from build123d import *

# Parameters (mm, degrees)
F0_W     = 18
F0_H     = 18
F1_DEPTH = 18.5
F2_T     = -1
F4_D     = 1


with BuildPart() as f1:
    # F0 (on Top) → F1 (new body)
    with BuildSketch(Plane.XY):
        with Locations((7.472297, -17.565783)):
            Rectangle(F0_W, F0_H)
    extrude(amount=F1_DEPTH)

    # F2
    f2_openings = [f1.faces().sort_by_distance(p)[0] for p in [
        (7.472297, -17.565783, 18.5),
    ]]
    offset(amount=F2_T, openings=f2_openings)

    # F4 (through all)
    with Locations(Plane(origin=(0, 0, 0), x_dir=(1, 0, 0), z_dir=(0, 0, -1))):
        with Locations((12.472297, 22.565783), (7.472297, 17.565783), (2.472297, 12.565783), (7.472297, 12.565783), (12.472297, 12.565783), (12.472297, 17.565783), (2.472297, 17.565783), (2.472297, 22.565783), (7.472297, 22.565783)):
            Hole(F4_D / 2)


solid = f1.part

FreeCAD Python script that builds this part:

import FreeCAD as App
import Part
import Sketcher

V = App.Vector


def faces_at(feature, points):
    """Names of the faces that lie closest to the given points."""
    faces = feature.Shape.Faces
    near = lambda p: min(range(len(faces)), key=lambda i: faces[i].distToShape(Part.Vertex(*p))[0])
    return sorted({f"Face{near(p) + 1}" for p in points})


def add_polygon(sketch, points):
    """Adds a closed chain of lines whose ends are joined by coincident constraints."""
    first, n = sketch.GeometryCount, len(points)
    for a, b in zip(points, points[1:] + points[:1]):
        sketch.addGeometry(Part.LineSegment(App.Vector(*a, 0), App.Vector(*b, 0)), False)
    for i in range(n):
        sketch.addConstraint(Sketcher.Constraint("Coincident", first + i, 2, first + (i + 1) % n, 1))

doc = App.newDocument("Part")
params = doc.addObject("Spreadsheet::Sheet", "Params")
for row, (alias, value) in enumerate([
    ("sketch1_width", "18 mm"),
    ("pad1_length", "18.5 mm"),
    ("thickness_wall", "1 mm"),
    ("sketch2_diameter", "1 mm"),
    ("hole_diameter", "1 mm"),
], start=1):
    params.set(f"A{row}", alias)
    params.set(f"B{row}", "=" + value)
    params.setAlias(f"B{row}", alias)

body = doc.addObject("PartDesign::Body", "Body")

# Sketch on XY plane
sketch1 = body.newObject("Sketcher::SketchObject", "Sketch")
sketch1.AttachmentSupport = (doc.getObject("XY_Plane"), [""])
sketch1.MapMode = "FlatFace"
add_polygon(sketch1, [(-2, -9), (-2, -27), (16, -27), (16, -9)])  # lines 0-3
sketch1.addConstraint(Sketcher.Constraint("Vertical", 0))
sketch1.addConstraint(Sketcher.Constraint("Horizontal", 1))
sketch1.addConstraint(Sketcher.Constraint("Vertical", 2))
sketch1.addConstraint(Sketcher.Constraint("Horizontal", 3))
sketch1.addConstraint(Sketcher.Constraint("Equal", 3, 0))
sketch1.addConstraint(Sketcher.Constraint("DistanceX", 1, 1, 1, 2, 18.0))
sketch1.addConstraint(Sketcher.Constraint("DistanceX", 0, 2, -1, 1, 1.527703))
sketch1.addConstraint(Sketcher.Constraint("DistanceY", 0, 2, -1, 1, 26.565783))
sketch1.setExpression("Constraints[9]", "Params.sketch1_width")
pad1 = body.newObject("PartDesign::Pad", "Pad")
pad1.Profile = sketch1
pad1.setExpression("Length", "Params.pad1_length")
doc.recompute()

thickness = body.newObject("PartDesign::Thickness", "Thickness")
thickness.Base = (pad1, faces_at(pad1, [(7.472, -17.566, 18.5)]))
thickness.setExpression("Value", "Params.thickness_wall")
thickness.Reversed = True
thickness.Join = "Arc"

# Sketch on XY plane
sketch2 = body.newObject("Sketcher::SketchObject", "Sketch001")
sketch2.AttachmentSupport = (doc.getObject("XY_Plane"), [""])
sketch2.MapMode = "FlatFace"
sketch2.addGeometry(Part.Circle(V(12.5, -22.6, 0), V(0, 0, 1), 0.5), False)
sketch2.addGeometry(Part.Circle(V(7.5, -17.6, 0), V(0, 0, 1), 0.5), False)
sketch2.addGeometry(Part.Circle(V(2.5, -12.6, 0), V(0, 0, 1), 0.5), False)
sketch2.addGeometry(Part.Circle(V(7.5, -12.6, 0), V(0, 0, 1), 0.5), False)
sketch2.addGeometry(Part.Circle(V(12.5, -12.6, 0), V(0, 0, 1), 0.5), False)
sketch2.addGeometry(Part.Circle(V(12.5, -17.6, 0), V(0, 0, 1), 0.5), False)
sketch2.addGeometry(Part.Circle(V(2.5, -17.6, 0), V(0, 0, 1), 0.5), False)
sketch2.addGeometry(Part.Circle(V(2.5, -22.6, 0), V(0, 0, 1), 0.5), False)
sketch2.addGeometry(Part.Circle(V(7.5, -22.6, 0), V(0, 0, 1), 0.5), False)
sketch2.addConstraint(Sketcher.Constraint("Equal", 0, 1))
sketch2.addConstraint(Sketcher.Constraint("Equal", 1, 2))
sketch2.addConstraint(Sketcher.Constraint("Equal", 2, 3))
sketch2.addConstraint(Sketcher.Constraint("Equal", 3, 4))
sketch2.addConstraint(Sketcher.Constraint("Equal", 4, 5))
sketch2.addConstraint(Sketcher.Constraint("Equal", 5, 6))
sketch2.addConstraint(Sketcher.Constraint("Equal", 6, 7))
sketch2.addConstraint(Sketcher.Constraint("Equal", 7, 8))
sketch2.addConstraint(Sketcher.Constraint("Horizontal", 2, 3, 3, 3))
sketch2.addConstraint(Sketcher.Constraint("Horizontal", 3, 3, 4, 3))
sketch2.addConstraint(Sketcher.Constraint("Horizontal", 1, 3, 5, 3))
sketch2.addConstraint(Sketcher.Constraint("Horizontal", 5, 3, 6, 3))
sketch2.addConstraint(Sketcher.Constraint("Horizontal", 0, 3, 7, 3))
sketch2.addConstraint(Sketcher.Constraint("Horizontal", 7, 3, 8, 3))
sketch2.addConstraint(Sketcher.Constraint("Vertical", 1, 3, 3, 3))
sketch2.addConstraint(Sketcher.Constraint("Vertical", 0, 3, 4, 3))
sketch2.addConstraint(Sketcher.Constraint("Vertical", 4, 3, 5, 3))
sketch2.addConstraint(Sketcher.Constraint("Vertical", 2, 3, 6, 3))
sketch2.addConstraint(Sketcher.Constraint("Vertical", 6, 3, 7, 3))
sketch2.addConstraint(Sketcher.Constraint("Vertical", 3, 3, 8, 3))
sketch2.addConstraint(Sketcher.Constraint("Diameter", 0, 1.0))
sketch2.addConstraint(Sketcher.Constraint("DistanceX", 1, 3, 0, 3, 5.0))
sketch2.addConstraint(Sketcher.Constraint("DistanceY", 0, 3, 1, 3, 5.0))
sketch2.addConstraint(Sketcher.Constraint("DistanceX", 2, 3, 1, 3, 5.0))
sketch2.addConstraint(Sketcher.Constraint("DistanceY", 1, 3, 2, 3, 5.0))
sketch2.addConstraint(Sketcher.Constraint("DistanceX", -1, 1, 0, 3, 12.472297))
sketch2.addConstraint(Sketcher.Constraint("DistanceY", 0, 3, -1, 1, 22.565783))
sketch2.setExpression("Constraints[20]", "Params.sketch2_diameter")
doc.recompute()
hole = body.newObject("PartDesign::Hole", "Hole")
hole.Profile = sketch2
hole.ThreadType = "None"
hole.setExpression("Diameter", "Params.hole_diameter")
hole.DepthType = "ThroughAll"
hole.Reversed = True

doc.recompute()
